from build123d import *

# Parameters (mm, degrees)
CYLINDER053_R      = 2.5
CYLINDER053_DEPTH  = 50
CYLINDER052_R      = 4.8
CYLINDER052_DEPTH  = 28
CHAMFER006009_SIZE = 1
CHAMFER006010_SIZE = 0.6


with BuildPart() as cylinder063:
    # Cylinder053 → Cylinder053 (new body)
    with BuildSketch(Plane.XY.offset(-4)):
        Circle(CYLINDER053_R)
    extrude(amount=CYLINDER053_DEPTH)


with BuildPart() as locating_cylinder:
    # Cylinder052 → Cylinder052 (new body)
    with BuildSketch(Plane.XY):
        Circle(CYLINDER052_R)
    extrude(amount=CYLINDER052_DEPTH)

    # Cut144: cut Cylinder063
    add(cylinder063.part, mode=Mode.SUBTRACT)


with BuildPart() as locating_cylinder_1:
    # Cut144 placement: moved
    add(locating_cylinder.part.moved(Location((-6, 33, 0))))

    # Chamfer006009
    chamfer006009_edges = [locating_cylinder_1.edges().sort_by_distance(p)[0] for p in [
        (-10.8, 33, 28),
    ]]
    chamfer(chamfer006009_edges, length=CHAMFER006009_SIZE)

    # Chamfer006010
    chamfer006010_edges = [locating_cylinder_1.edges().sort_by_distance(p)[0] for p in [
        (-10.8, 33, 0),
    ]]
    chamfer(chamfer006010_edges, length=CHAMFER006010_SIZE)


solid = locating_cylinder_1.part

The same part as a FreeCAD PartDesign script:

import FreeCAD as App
import Part
import Sketcher
from FreeCAD import Vector


def edges_at(feature, points):
    """Names of the edges that pass closest to the given points."""
    edges = feature.Shape.Edges
    near = lambda p: min(range(len(edges)), key=lambda i: edges[i].distToShape(Part.Vertex(*p))[0])
    return sorted({f"Edge{near(p) + 1}" for p in points})

doc = App.newDocument("Part")
params = doc.addObject("Spreadsheet::Sheet", "Params")
for row, (alias, value) in enumerate([
    ("sketch1_diameter", "5 mm"),
    ("pad1_length", "50 mm"),
    ("sketch2_diameter", "9.6 mm"),
    ("pad2_length", "28 mm"),
    ("chamfer_size", "1 mm"),
    ("chamfer2_size", "0.6 mm"),
], start=1):
    params.set(f"A{row}", alias)
    params.set(f"B{row}", "=" + value)
    params.setAlias(f"B{row}", alias)

body = doc.addObject("PartDesign::Body", "Body")

# Sketch on XY plane
sketch1 = doc.addObject("Sketcher::SketchObject", "Sketch")
body.addObject(sketch1)
sketch1.AttachmentSupport = (doc.XY_Plane, [""])
sketch1.MapMode = "FlatFace"
sketch1.AttachmentOffset = App.Placement(Vector(0, 0, -4), App.Rotation())
sketch1.addGeometry(Part.Circle(Vector(0, 0, 0), Vector(0, 0, 1), 2.5), False)
sketch1.addConstraint(Sketcher.Constraint("Coincident", 0, 3, -1, 1))
sketch1.addConstraint(Sketcher.Constraint("Diameter", 0, 5.0))
sketch1.setExpression("Constraints[1]", "Params.sketch1_diameter")
pad1 = doc.addObject("PartDesign::Pad", "Pad")
body.addObject(pad1)
pad1.Profile = sketch1
pad1.setExpression("Length", "Params.pad1_length")
body2 = doc.addObject("PartDesign::Body", "Body001")

# Sketch on XY plane
sketch2 = doc.addObject("Sketcher::SketchObject", "Sketch001")
body2.addObject(sketch2)
sketch2.AttachmentSupport = (doc.getObject("XY_Plane001"), [""])
sketch2.MapMode = "FlatFace"
sketch2.addGeometry(Part.Circle(Vector(0, 0, 0), Vector(0, 0, 1), 4.8), False)
sketch2.addConstraint(Sketcher.Constraint("Coincident", 0, 3, -1, 1))
sketch2.addConstraint(Sketcher.Constraint("Diameter", 0, 9.6))
sketch2.setExpression("Constraints[1]", "Params.sketch2_diameter")
pad2 = doc.addObject("PartDesign::Pad", "Pad001")
body2.addObject(pad2)
pad2.Profile = sketch2
pad2.setExpression("Length", "Params.pad2_length")
doc.recompute()

boolean = doc.addObject("PartDesign::Boolean", "Boolean")
body2.addObject(boolean)
boolean.Type = "Cut"
boolean.addObjects([body])
body3 = doc.addObject("PartDesign::Body", "Body002")
doc.recompute()

body2.Placement = App.Placement(Vector(-6, 33, 0), App.Rotation(Vector(0, 0, 1), 0))
boolean2 = doc.addObject("PartDesign::Boolean", "Boolean001")
body3.addObject(boolean2)
boolean2.Type = "Fuse"
boolean2.addObjects([body2])
doc.recompute()

chamfer = doc.addObject("PartDesign::Chamfer", "Chamfer")
body3.addObject(chamfer)
chamfer.Base = (boolean2, edges_at(boolean2, [(-10.8, 33, 28)]))
chamfer.setExpression("Size", "Params.chamfer_size")
doc.recompute()

chamfer2 = doc.addObject("PartDesign::Chamfer", "Chamfer001")
body3.addObject(chamfer2)
chamfer2.Base = (chamfer, edges_at(chamfer, [(-10.8, 33, 0)]))
chamfer2.setExpression("Size", "Params.chamfer2_size")

doc.recompute()
